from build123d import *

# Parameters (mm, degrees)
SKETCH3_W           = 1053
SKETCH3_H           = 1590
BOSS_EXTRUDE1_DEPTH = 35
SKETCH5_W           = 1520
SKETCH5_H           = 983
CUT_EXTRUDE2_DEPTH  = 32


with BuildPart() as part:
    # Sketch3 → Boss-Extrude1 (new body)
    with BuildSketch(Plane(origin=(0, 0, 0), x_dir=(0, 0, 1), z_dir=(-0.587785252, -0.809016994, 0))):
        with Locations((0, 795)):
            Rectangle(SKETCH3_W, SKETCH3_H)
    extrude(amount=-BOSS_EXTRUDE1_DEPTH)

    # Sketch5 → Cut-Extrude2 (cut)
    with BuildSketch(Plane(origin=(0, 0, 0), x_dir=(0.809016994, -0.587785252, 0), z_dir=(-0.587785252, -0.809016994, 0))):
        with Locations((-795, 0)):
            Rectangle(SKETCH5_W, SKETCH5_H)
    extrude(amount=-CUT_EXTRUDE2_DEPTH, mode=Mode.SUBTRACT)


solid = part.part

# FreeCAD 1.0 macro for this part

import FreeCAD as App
import Part
import Sketcher
from FreeCAD import Vector
Q = App.Units.Quantity


def add_polygon(sketch, points):
    """Adds a closed chain of lines whose ends are joined by coincident constraints."""
    first, n = sketch.GeometryCount, len(points)
    for a, b in zip(points, points[1:] + points[:1]):
        sketch.addGeometry(Part.LineSegment(App.Vector(*a, 0), App.Vector(*b, 0)), False)
    for i in range(n):
        sketch.addConstraint(Sketcher.Constraint("Coincident", first + i, 2, first + (i + 1) % n, 1))

doc = App.newDocument("Part")
body = doc.addObject("PartDesign::Body", "Body")

sketch1 = body.newObject("Sketcher::SketchObject", "Sketch")
sketch1.Placement = App.Placement(Vector(0, 0, 0), App.Rotation(Vector(0, 0, 1), Vector(-0.809016994, 0.587785252, 0), Vector(-0.587785252, -0.809016994, 0), "ZXY"))
add_polygon(sketch1, [(-526, 1590), (-526, 0), (526, 0), (526, 1590)])
sketch1.addConstraint(Sketcher.Constraint("Vertical", 0))
sketch1.addConstraint(Sketcher.Constraint("Horizontal", 1))
sketch1.addConstraint(Sketcher.Constraint("Vertical", 2))
sketch1.addConstraint(Sketcher.Constraint("Horizontal", 3))
sketch1.addConstraint(Sketcher.Constraint("Symmetric", 0, 2, 1, 2, -1, 1))
sketch1.addConstraint(Sketcher.Constraint("DistanceX", 1, 1, 1, 2, Q("1053 mm")))
sketch1.addConstraint(Sketcher.Constraint("DistanceY", 0, 2, 0, 1, Q("1589.999998 mm")))
pad1 = body.newObject("PartDesign::Pad", "Pad")
pad1.Profile = sketch1
pad1.Length = 35
pad1.Reversed = True

sketch2 = body.newObject("Sketcher::SketchObject", "Sketch001")
sketch2.Placement = App.Placement(Vector(0, 0, 0), App.Rotation(Vector(0.809016994, -0.587785252, 0), Vector(0, 0, 0.999999999), Vector(-0.587785252, -0.809016994, 0), "ZXY"))
add_polygon(sketch2, [(-1555, 491), (-1555, -491), (-35, -491), (-35, 491)])
sketch2.addConstraint(Sketcher.Constraint("Vertical", 0))
sketch2.addConstraint(Sketcher.Constraint("Horizontal", 1))
sketch2.addConstraint(Sketcher.Constraint("Vertical", 2))
sketch2.addConstraint(Sketcher.Constraint("Horizontal", 3))
sketch2.addConstraint(Sketcher.Constraint("DistanceX", 1, 1, 1, 2, Q("1519.999999 mm")))
sketch2.addConstraint(Sketcher.Constraint("DistanceY", 0, 2, 0, 1, Q("982.999998 mm")))
sketch2.addConstraint(Sketcher.Constraint("DistanceX", 0, 2, -1, 1, Q("1554.999999 mm")))
sketch2.addConstraint(Sketcher.Constraint("DistanceY", 0, 2, -1, 1, Q("491.499999 mm")))
pocket1 = body.newObject("PartDesign::Pocket", "Pocket")
pocket1.Profile = sketch2
pocket1.Length = 32

doc.recompute()
